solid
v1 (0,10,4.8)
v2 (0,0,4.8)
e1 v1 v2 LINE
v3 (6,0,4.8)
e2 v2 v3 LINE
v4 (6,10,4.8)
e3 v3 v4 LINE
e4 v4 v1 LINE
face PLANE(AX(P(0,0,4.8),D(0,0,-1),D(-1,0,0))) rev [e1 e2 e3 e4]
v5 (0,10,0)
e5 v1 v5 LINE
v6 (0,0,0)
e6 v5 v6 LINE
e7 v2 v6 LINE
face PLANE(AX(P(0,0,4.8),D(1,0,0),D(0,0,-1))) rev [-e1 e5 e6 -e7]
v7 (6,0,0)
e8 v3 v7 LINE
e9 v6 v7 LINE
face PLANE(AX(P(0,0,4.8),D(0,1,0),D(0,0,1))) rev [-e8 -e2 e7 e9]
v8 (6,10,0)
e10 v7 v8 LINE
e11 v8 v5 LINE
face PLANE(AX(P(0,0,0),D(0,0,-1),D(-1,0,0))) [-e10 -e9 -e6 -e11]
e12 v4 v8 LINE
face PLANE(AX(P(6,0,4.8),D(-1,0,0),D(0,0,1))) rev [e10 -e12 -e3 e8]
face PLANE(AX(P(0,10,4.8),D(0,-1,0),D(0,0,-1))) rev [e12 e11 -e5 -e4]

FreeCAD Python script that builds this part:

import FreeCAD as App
import Part
import Sketcher

doc = App.newDocument("Part")
body = doc.addObject("PartDesign::Body", "Body")

# Sketch on XY plane
sketch1 = body.newObject("Sketcher::SketchObject", "Sketch")
sketch1.AttachmentSupport = (doc.getObject("XY_Plane"), [""])
sketch1.MapMode = "FlatFace"
sketch1.addGeometry(Part.LineSegment(App.Vector(0, 10, 0), App.Vector(0, 0, 0)), False)
sketch1.addGeometry(Part.LineSegment(App.Vector(0, 0, 0), App.Vector(6, 0, 0)), False)
sketch1.addGeometry(Part.LineSegment(App.Vector(6, 0, 0), App.Vector(6, 10, 0)), False)
sketch1.addGeometry(Part.LineSegment(App.Vector(6, 10, 0), App.Vector(0, 10, 0)), False)
sketch1.addConstraint(Sketcher.Constraint("Coincident", 0, 2, 1, 1))
sketch1.addConstraint(Sketcher.Constraint("Coincident", 1, 2, 2, 1))
sketch1.addConstraint(Sketcher.Constraint("Coincident", 2, 2, 3, 1))
sketch1.addConstraint(Sketcher.Constraint("Coincident", 3, 2, 0, 1))
sketch1.addConstraint(Sketcher.Constraint("Vertical", 0))
sketch1.addConstraint(Sketcher.Constraint("Horizontal", 1))
sketch1.addConstraint(Sketcher.Constraint("Vertical", 2))
sketch1.addConstraint(Sketcher.Constraint("Horizontal", 3))
sketch1.addConstraint(Sketcher.Constraint("Coincident", 0, 2, -1, 1))
sketch1.addConstraint(Sketcher.Constraint("DistanceX", 1, 1, 1, 2, 6.0))
sketch1.addConstraint(Sketcher.Constraint("DistanceY", 0, 2, 0, 1, 10.0))
pad1 = body.newObject("PartDesign::Pad", "Pad")
pad1.Profile = sketch1
pad1.Length = 4.8

doc.recompute()
